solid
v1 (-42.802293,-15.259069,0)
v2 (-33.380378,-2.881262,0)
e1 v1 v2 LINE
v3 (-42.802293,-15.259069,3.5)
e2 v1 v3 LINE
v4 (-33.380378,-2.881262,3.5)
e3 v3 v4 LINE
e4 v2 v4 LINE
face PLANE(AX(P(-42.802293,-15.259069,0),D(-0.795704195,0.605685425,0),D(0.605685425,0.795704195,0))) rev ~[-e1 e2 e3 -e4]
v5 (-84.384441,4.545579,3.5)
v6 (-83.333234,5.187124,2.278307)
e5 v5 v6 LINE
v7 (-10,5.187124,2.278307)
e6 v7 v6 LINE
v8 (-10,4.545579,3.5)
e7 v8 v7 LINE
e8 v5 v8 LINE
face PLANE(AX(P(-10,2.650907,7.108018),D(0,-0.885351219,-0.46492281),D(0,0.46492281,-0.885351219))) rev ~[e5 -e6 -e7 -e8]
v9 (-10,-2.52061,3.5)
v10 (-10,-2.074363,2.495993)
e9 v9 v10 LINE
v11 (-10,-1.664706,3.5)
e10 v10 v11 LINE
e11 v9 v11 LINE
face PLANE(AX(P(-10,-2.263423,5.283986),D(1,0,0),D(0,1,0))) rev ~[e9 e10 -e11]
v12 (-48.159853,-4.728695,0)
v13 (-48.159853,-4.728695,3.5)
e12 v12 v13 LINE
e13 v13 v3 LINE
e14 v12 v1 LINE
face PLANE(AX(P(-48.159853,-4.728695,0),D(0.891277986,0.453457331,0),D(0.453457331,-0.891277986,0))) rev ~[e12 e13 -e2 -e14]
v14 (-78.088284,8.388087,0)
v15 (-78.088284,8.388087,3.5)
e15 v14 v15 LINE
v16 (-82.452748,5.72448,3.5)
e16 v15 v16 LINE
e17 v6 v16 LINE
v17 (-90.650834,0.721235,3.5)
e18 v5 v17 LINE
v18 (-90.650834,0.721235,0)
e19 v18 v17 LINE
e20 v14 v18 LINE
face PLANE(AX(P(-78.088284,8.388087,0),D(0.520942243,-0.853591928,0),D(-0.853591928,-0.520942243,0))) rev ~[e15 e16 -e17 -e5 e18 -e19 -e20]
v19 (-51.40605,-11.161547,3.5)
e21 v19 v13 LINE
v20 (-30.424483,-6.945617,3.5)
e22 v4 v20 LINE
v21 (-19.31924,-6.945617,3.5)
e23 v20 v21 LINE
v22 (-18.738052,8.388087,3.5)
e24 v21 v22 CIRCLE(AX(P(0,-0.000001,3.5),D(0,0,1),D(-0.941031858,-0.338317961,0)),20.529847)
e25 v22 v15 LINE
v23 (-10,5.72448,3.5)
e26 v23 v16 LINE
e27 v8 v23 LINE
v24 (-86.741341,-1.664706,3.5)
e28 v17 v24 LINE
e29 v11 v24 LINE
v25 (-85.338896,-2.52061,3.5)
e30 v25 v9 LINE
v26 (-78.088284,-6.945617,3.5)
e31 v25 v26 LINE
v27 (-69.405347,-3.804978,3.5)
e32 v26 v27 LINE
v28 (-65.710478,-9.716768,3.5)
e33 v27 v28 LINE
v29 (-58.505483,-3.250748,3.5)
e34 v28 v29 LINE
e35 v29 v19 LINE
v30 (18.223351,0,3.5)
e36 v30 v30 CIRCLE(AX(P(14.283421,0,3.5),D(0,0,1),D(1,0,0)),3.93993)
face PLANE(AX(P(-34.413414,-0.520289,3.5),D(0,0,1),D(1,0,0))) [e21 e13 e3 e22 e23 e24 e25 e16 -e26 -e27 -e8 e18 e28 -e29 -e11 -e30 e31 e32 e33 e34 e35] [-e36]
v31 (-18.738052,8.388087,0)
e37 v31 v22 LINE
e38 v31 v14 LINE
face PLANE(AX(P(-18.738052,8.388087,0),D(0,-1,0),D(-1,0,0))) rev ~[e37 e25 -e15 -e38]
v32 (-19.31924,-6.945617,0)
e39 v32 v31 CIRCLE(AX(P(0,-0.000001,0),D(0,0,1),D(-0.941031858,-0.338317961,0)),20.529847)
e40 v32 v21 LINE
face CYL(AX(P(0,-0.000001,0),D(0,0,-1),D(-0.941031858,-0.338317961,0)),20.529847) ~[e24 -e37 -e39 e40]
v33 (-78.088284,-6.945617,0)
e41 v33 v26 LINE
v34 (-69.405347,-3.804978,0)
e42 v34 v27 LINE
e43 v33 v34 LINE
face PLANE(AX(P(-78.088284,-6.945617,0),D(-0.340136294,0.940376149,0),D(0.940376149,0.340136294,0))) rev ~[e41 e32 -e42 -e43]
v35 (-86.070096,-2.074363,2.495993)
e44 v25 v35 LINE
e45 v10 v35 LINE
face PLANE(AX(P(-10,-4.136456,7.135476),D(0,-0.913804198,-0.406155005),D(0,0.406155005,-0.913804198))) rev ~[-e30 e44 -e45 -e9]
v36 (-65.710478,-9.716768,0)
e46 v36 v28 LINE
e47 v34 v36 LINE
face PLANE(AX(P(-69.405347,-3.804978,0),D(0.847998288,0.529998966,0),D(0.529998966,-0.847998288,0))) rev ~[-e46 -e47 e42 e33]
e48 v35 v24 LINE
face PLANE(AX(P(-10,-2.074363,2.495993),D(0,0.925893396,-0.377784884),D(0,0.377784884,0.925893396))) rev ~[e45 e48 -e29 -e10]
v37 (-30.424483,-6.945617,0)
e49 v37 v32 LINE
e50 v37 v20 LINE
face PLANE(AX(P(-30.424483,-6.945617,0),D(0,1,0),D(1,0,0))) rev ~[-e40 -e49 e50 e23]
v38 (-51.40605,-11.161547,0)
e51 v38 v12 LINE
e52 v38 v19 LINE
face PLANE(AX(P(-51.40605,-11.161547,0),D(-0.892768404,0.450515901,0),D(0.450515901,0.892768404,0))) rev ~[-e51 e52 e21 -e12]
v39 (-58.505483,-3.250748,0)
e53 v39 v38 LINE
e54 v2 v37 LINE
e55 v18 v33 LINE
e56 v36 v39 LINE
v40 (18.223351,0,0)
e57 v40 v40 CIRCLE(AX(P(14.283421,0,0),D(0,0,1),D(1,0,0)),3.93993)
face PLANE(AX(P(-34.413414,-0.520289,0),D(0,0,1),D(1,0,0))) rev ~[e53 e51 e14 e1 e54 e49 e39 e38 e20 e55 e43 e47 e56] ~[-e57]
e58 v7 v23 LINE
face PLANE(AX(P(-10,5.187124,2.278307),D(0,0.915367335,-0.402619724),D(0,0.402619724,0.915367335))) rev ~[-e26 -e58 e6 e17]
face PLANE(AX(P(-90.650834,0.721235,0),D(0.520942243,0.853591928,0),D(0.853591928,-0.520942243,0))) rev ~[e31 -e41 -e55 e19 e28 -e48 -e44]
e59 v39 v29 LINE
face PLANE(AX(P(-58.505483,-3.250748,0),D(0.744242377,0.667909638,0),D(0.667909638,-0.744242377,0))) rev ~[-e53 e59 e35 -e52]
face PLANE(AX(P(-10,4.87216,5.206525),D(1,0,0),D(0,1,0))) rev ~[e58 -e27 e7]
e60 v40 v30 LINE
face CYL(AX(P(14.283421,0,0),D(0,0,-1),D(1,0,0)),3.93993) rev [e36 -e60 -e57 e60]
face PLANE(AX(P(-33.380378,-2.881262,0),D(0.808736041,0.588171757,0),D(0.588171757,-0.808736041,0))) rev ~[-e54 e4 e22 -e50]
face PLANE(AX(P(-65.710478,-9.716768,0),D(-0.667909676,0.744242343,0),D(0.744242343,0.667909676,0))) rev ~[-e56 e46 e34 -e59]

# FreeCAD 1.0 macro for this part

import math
import FreeCAD as App
import Part
import Sketcher


def add_polygon(sketch, points):
    """Adds a closed chain of lines whose ends are joined by coincident constraints."""
    first, n = sketch.GeometryCount, len(points)
    for a, b in zip(points, points[1:] + points[:1]):
        sketch.addGeometry(Part.LineSegment(App.Vector(*a, 0), App.Vector(*b, 0)), False)
    for i in range(n):
        sketch.addConstraint(Sketcher.Constraint("Coincident", first + i, 2, first + (i + 1) % n, 1))

doc = App.newDocument("Part")
body = doc.addObject("PartDesign::Body", "Body")

# Sketch on XY plane
sketch1 = body.newObject("Sketcher::SketchObject", "Sketch")
sketch1.AttachmentSupport = (doc.getObject("XY_Plane"), [""])
sketch1.MapMode = "FlatFace"
sketch1.addGeometry(Part.LineSegment(App.Vector(-30.424483, -6.945617, 0), App.Vector(-19.31924, -6.945617, 0)), False)
sketch1.addGeometry(Part.ArcOfCircle(Part.Circle(App.Vector(0, -0.000001, 0), App.Vector(0, 0, 1), 20.529847), math.radians(-160.225572), math.radians(155.884326)), False)
sketch1.addGeometry(Part.LineSegment(App.Vector(-18.738052, 8.388087, 0), App.Vector(-78.088284, 8.388087, 0)), False)
sketch1.addGeometry(Part.LineSegment(App.Vector(-78.088284, 8.388087, 0), App.Vector(-90.650834, 0.721235, 0)), False)
sketch1.addGeometry(Part.LineSegment(App.Vector(-90.650834, 0.721235, 0), App.Vector(-78.088284, -6.945617, 0)), False)
sketch1.addGeometry(Part.LineSegment(App.Vector(-78.088284, -6.945617, 0), App.Vector(-69.405347, -3.804978, 0)), False)
sketch1.addGeometry(Part.LineSegment(App.Vector(-69.405347, -3.804978, 0), App.Vector(-65.710478, -9.716768, 0)), False)
sketch1.addGeometry(Part.LineSegment(App.Vector(-65.710478, -9.716768, 0), App.Vector(-58.505483, -3.250748, 0)), False)
sketch1.addGeometry(Part.LineSegment(App.Vector(-58.505483, -3.250748, 0), App.Vector(-51.40605, -11.161547, 0)), False)
sketch1.addGeometry(Part.LineSegment(App.Vector(-51.40605, -11.161547, 0), App.Vector(-48.159853, -4.728695, 0)), False)
sketch1.addGeometry(Part.LineSegment(App.Vector(-48.159853, -4.728695, 0), App.Vector(-42.802293, -15.259069, 0)), False)
sketch1.addGeometry(Part.LineSegment(App.Vector(-42.802293, -15.259069, 0), App.Vector(-33.380378, -2.881262, 0)), False)
sketch1.addGeometry(Part.LineSegment(App.Vector(-33.380378, -2.881262, 0), App.Vector(-30.424483, -6.945617, 0)), False)
sketch1.addGeometry(Part.Circle(App.Vector(14.283421, 0, 0), App.Vector(0, 0, 1), 3.93993), False)
sketch1.addConstraint(Sketcher.Constraint("Coincident", 0, 2, 1, 1))
sketch1.addConstraint(Sketcher.Constraint("Coincident", 1, 2, 2, 1))
sketch1.addConstraint(Sketcher.Constraint("Coincident", 2, 2, 3, 1))
sketch1.addConstraint(Sketcher.Constraint("Coincident", 3, 2, 4, 1))
sketch1.addConstraint(Sketcher.Constraint("Coincident", 4, 2, 5, 1))
sketch1.addConstraint(Sketcher.Constraint("Coincident", 5, 2, 6, 1))
sketch1.addConstraint(Sketcher.Constraint("Coincident", 6, 2, 7, 1))
sketch1.addConstraint(Sketcher.Constraint("Coincident", 7, 2, 8, 1))
sketch1.addConstraint(Sketcher.Constraint("Coincident", 8, 2, 9, 1))
sketch1.addConstraint(Sketcher.Constraint("Coincident", 9, 2, 10, 1))
sketch1.addConstraint(Sketcher.Constraint("Coincident", 10, 2, 11, 1))
sketch1.addConstraint(Sketcher.Constraint("Coincident", 11, 2, 12, 1))
sketch1.addConstraint(Sketcher.Constraint("Coincident", 12, 2, 0, 1))
sketch1.addConstraint(Sketcher.Constraint("Horizontal", 0))
sketch1.addConstraint(Sketcher.Constraint("Horizontal", 2))
sketch1.addConstraint(Sketcher.Constraint("Coincident", 1, 3, -1, 1))
sketch1.addConstraint(Sketcher.Constraint("PointOnObject", 13, 3, -1))
sketch1.addConstraint(Sketcher.Constraint("Perpendicular", 7, 8))
sketch1.addConstraint(Sketcher.Constraint("Horizontal", 0, 2, 4, 2))
sketch1.addConstraint(Sketcher.Constraint("Vertical", 2, 2, 4, 2))
sketch1.addConstraint(Sketcher.Constraint("Equal", 3, 4))
sketch1.addConstraint(Sketcher.Constraint("Diameter", 13, 7.87986))
sketch1.addConstraint(Sketcher.Constraint("Radius", 1, 20.529847))
sketch1.addConstraint(Sketcher.Constraint("DistanceX", 4, 2, 7, 2, 19.582801))
sketch1.addConstraint(Sketcher.Constraint("DistanceY", 8, 2, 7, 2, 7.910799))
sketch1.addConstraint(Sketcher.Constraint("DistanceY", 10, 2, 6, 2, 5.542301))
sketch1.addConstraint(Sketcher.Constraint("Distance", 3, 14.717278))
sketch1.addConstraint(Sketcher.Constraint("Distance", 7, 9.68098))
sketch1.addConstraint(Sketcher.Constraint("Distance", 8, 10.629332))
sketch1.addConstraint(Sketcher.Constraint("Distance", 9, 7.20551))
sketch1.addConstraint(Sketcher.Constraint("Distance", 11, 15.55579))
sketch1.addConstraint(Sketcher.Constraint("DistanceX", 0, 1, 0, 2, 11.105243))
sketch1.addConstraint(Sketcher.Constraint("DistanceX", 2, 2, 2, 1, 59.350232))
sketch1.addConstraint(Sketcher.Constraint("DistanceX", -1, 1, 13, 3, 14.283421))
sketch1.addConstraint(Sketcher.Constraint("DistanceX", 0, 2, -1, 1, 19.31924))
sketch1.addConstraint(Sketcher.Constraint("DistanceX", 1, 2, -1, 1, 18.738052))
sketch1.addConstraint(Sketcher.Constraint("DistanceY", 5, 2, -1, 1, 3.804978))
sketch1.addConstraint(Sketcher.Constraint("DistanceY", 7, 2, -1, 1, 3.250748))
sketch1.addConstraint(Sketcher.Constraint("DistanceY", 11, 2, -1, 1, 2.881262))
sketch1.addConstraint(Sketcher.Constraint("DistanceX", 5, 2, 6, 2, 3.694869))
sketch1.addConstraint(Sketcher.Constraint("DistanceX", 7, 2, 9, 2, 10.34563))
sketch1.addConstraint(Sketcher.Constraint("DistanceX", 9, 2, 10, 2, 5.35756))
pad1 = body.newObject("PartDesign::Pad", "Pad")
pad1.Profile = sketch1
pad1.Length = 3.5

# Sketch on YZ plane
sketch2 = body.newObject("Sketcher::SketchObject", "Sketch001")
sketch2.AttachmentSupport = (doc.getObject("YZ_Plane"), [""])
sketch2.MapMode = "FlatFace"
sketch2.AttachmentOffset = App.Placement(App.Vector(0, 0, -10), App.Rotation())
add_polygon(sketch2, [(5.187124, 2.278307), (6.987329, 6.371124), (2.650907, 7.108018)])  # lines 0-2
add_polygon(sketch2, [(-2.074363, 2.495993), (-0.437801, 6.506958), (-4.136456, 7.135476)])  # lines 3-5
sketch2.addConstraint(Sketcher.Constraint("Parallel", 1, 4))
sketch2.addConstraint(Sketcher.Constraint("DistanceX", 3, 2, -1, 1, 0.437801))
sketch2.addConstraint(Sketcher.Constraint("Distance", 0, 4.471229))
sketch2.addConstraint(Sketcher.Constraint("Distance", 5, 5.077108))
sketch2.addConstraint(Sketcher.Constraint("DistanceX", -1, 1, 0, 2, 6.987329))
sketch2.addConstraint(Sketcher.Constraint("DistanceY", -1, 1, 1, 2, 7.108018))
sketch2.addConstraint(Sketcher.Constraint("DistanceX", 1, 2, 0, 2, 4.336422))
sketch2.addConstraint(Sketcher.Constraint("DistanceY", 2, 2, 1, 2, 4.829711))
sketch2.addConstraint(Sketcher.Constraint("DistanceY", 3, 2, 1, 2, 0.60106))
sketch2.addConstraint(Sketcher.Constraint("DistanceX", 4, 2, 2, 2, 9.32358))
sketch2.addConstraint(Sketcher.Constraint("DistanceY", 2, 2, 4, 2, 4.857169))
sketch2.addConstraint(Sketcher.Constraint("DistanceX", 5, 2, 1, 2, 4.72527))
pocket1 = body.newObject("PartDesign::Pocket", "Pocket")
pocket1.Profile = sketch2
pocket1.Length = 150

doc.recompute()
